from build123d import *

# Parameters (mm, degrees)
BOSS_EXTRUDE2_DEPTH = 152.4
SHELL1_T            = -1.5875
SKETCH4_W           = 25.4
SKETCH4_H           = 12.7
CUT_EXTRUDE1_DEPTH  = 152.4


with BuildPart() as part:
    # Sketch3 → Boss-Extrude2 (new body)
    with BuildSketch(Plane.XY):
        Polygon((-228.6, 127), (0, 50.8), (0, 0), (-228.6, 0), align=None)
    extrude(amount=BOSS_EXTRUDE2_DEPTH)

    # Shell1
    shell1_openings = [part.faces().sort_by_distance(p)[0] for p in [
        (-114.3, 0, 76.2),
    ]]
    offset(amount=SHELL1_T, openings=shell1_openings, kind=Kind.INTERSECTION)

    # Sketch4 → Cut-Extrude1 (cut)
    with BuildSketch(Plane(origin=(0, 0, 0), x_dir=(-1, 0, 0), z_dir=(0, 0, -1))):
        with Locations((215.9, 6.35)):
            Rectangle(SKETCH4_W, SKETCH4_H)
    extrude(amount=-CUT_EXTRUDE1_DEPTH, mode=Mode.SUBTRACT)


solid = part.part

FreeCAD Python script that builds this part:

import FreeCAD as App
import Part
import Sketcher
from FreeCAD import Vector
Q = App.Units.Quantity


def faces_at(feature, points):
    """Names of the faces that lie closest to the given points."""
    faces = feature.Shape.Faces
    near = lambda p: min(range(len(faces)), key=lambda i: faces[i].distToShape(Part.Vertex(*p))[0])
    return sorted({f"Face{near(p) + 1}" for p in points})

doc = App.newDocument("Part")
params = doc.addObject("Spreadsheet::Sheet", "Params")
for row, (alias, value) in enumerate([
    ("sketch1_width", "9 in"),
    ("sketch1_height", "5 in"),
    ("sketch1_height2", "2 in"),
    ("pad1_length", "6 in"),
    ("thickness_wall", "0.0625 in"),
    ("sketch2_width", "1 in"),
    ("sketch2_height", "0.5 in"),
    ("pocket1_length", "6 in"),
], start=1):
    params.set(f"A{row}", alias)
    params.set(f"B{row}", "=" + value)
    params.setAlias(f"B{row}", alias)

body = doc.addObject("PartDesign::Body", "Body")

sketch1 = body.newObject("Sketcher::SketchObject", "Sketch")
sketch1.AttachmentSupport = (doc.getObject("XY_Plane"), [""])
sketch1.MapMode = "FlatFace"
sketch1.addGeometry(Part.LineSegment(Vector(0, 50.8, 0), Vector(-228.6, 127, 0)), False)
sketch1.addGeometry(Part.LineSegment(Vector(-228.6, 127, 0), Vector(-228.6, 0, 0)), False)
sketch1.addGeometry(Part.LineSegment(Vector(-228.6, 0, 0), Vector(0, 0, 0)), False)
sketch1.addGeometry(Part.LineSegment(Vector(0, 0, 0), Vector(0, 50.8, 0)), False)
sketch1.addConstraint(Sketcher.Constraint("Coincident", 0, 2, 1, 1))
sketch1.addConstraint(Sketcher.Constraint("Coincident", 1, 2, 2, 1))
sketch1.addConstraint(Sketcher.Constraint("Coincident", 2, 2, 3, 1))
sketch1.addConstraint(Sketcher.Constraint("Coincident", 3, 2, 0, 1))
sketch1.addConstraint(Sketcher.Constraint("Vertical", 1))
sketch1.addConstraint(Sketcher.Constraint("Horizontal", 2))
sketch1.addConstraint(Sketcher.Constraint("Vertical", 3))
sketch1.addConstraint(Sketcher.Constraint("Coincident", 2, 2, -1, 1))
sketch1.addConstraint(Sketcher.Constraint("DistanceX", 2, 1, 2, 2, Q("9 in")))
sketch1.addConstraint(Sketcher.Constraint("DistanceY", 1, 2, 1, 1, Q("5 in")))
sketch1.addConstraint(Sketcher.Constraint("DistanceY", 3, 1, 3, 2, Q("2 in")))
sketch1.setExpression("Constraints[8]", "Params.sketch1_width")
sketch1.setExpression("Constraints[9]", "Params.sketch1_height")
sketch1.setExpression("Constraints[10]", "Params.sketch1_height2")
pad1 = body.newObject("PartDesign::Pad", "Pad")
pad1.Profile = sketch1
pad1.setExpression("Length", "Params.pad1_length")
doc.recompute()

thickness = body.newObject("PartDesign::Thickness", "Thickness")
thickness.Base = (pad1, faces_at(pad1, [(-114.3, 0, 76.2)]))
thickness.setExpression("Value", "Params.thickness_wall")
thickness.Reversed = True
thickness.Join = "Intersection"

sketch2 = body.newObject("Sketcher::SketchObject", "Sketch001")
sketch2.AttachmentSupport = (doc.getObject("XY_Plane"), [""])
sketch2.MapMode = "FlatFace"
sketch2.addGeometry(Part.LineSegment(Vector(-203.2, 12.7, 0), Vector(-203.2, 0, 0)), False)
sketch2.addGeometry(Part.LineSegment(Vector(-203.2, 0, 0), Vector(-228.6, 0, 0)), False)
sketch2.addGeometry(Part.LineSegment(Vector(-228.6, 0, 0), Vector(-228.6, 12.7, 0)), False)
sketch2.addGeometry(Part.LineSegment(Vector(-228.6, 12.7, 0), Vector(-203.2, 12.7, 0)), False)
sketch2.addConstraint(Sketcher.Constraint("Coincident", 0, 2, 1, 1))
sketch2.addConstraint(Sketcher.Constraint("Coincident", 1, 2, 2, 1))
sketch2.addConstraint(Sketcher.Constraint("Coincident", 2, 2, 3, 1))
sketch2.addConstraint(Sketcher.Constraint("Coincident", 3, 2, 0, 1))
sketch2.addConstraint(Sketcher.Constraint("Vertical", 0))
sketch2.addConstraint(Sketcher.Constraint("Horizontal", 1))
sketch2.addConstraint(Sketcher.Constraint("Vertical", 2))
sketch2.addConstraint(Sketcher.Constraint("Horizontal", 3))
sketch2.addConstraint(Sketcher.Constraint("PointOnObject", 0, 2, -1))
sketch2.addConstraint(Sketcher.Constraint("DistanceX", 1, 2, 1, 1, Q("1 in")))
sketch2.addConstraint(Sketcher.Constraint("DistanceY", 0, 2, 0, 1, Q("0.5 in")))
sketch2.addConstraint(Sketcher.Constraint("DistanceX", 0, 2, -1, 1, Q("8 in")))
sketch2.setExpression("Constraints[9]", "Params.sketch2_width")
sketch2.setExpression("Constraints[10]", "Params.sketch2_height")
pocket1 = body.newObject("PartDesign::Pocket", "Pocket")
pocket1.Profile = sketch2
pocket1.setExpression("Length", "Params.pocket1_length")
pocket1.Reversed = True

doc.recompute()
